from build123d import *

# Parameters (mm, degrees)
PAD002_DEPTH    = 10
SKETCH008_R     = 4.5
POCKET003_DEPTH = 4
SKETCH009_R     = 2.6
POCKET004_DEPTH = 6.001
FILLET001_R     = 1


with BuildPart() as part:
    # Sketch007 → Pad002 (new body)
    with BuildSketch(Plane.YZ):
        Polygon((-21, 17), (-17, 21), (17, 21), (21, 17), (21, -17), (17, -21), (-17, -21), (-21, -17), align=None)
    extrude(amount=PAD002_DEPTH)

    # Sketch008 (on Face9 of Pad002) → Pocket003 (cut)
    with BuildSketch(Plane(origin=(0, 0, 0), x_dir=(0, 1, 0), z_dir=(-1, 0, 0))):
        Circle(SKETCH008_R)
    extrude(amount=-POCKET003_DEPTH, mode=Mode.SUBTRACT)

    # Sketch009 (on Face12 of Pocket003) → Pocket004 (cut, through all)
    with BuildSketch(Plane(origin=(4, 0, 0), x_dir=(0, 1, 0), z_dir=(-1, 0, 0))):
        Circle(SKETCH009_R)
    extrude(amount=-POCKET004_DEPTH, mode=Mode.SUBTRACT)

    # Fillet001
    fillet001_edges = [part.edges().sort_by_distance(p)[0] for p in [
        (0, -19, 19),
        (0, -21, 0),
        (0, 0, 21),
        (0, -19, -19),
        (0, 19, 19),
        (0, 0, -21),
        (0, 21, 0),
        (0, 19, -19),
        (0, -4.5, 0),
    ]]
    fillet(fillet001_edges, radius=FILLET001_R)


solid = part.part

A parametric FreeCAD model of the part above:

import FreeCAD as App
import Part
import Sketcher
from FreeCAD import Vector
Q = App.Units.Quantity


def edges_at(feature, points):
    """Names of the edges that pass closest to the given points."""
    edges = feature.Shape.Edges
    near = lambda p: min(range(len(edges)), key=lambda i: edges[i].distToShape(Part.Vertex(*p))[0])
    return sorted({f"Edge{near(p) + 1}" for p in points})


def add_polygon(sketch, points):
    """Adds a closed chain of lines whose ends are joined by coincident constraints."""
    first, n = sketch.GeometryCount, len(points)
    for a, b in zip(points, points[1:] + points[:1]):
        sketch.addGeometry(Part.LineSegment(App.Vector(*a, 0), App.Vector(*b, 0)), False)
    for i in range(n):
        sketch.addConstraint(Sketcher.Constraint("Coincident", first + i, 2, first + (i + 1) % n, 1))

doc = App.newDocument("Part")
params = doc.addObject("Spreadsheet::Sheet", "Params")
for row, (alias, value) in enumerate([
    ("sketch1_width", "34 mm"),
    ("pad1_length", "10 mm"),
    ("sketch2_diameter", "9 mm"),
    ("pocket1_length", "4 mm"),
    ("sketch3_diameter", "5.2 mm"),
    ("fillet_radius", "1 mm"),
], start=1):
    params.set(f"A{row}", alias)
    params.set(f"B{row}", "=" + value)
    params.setAlias(f"B{row}", alias)

body = doc.addObject("PartDesign::Body", "Body")

sketch1 = doc.addObject("Sketcher::SketchObject", "Sketch")
body.addObject(sketch1)
sketch1.AttachmentSupport = (doc.YZ_Plane, [""])
sketch1.MapMode = "FlatFace"
add_polygon(sketch1, [(-17, 21), (-21, 17), (-21, -17), (-17, -21), (17, -21), (21, -17), (21, 17), (17, 21)])
sketch1.addConstraint(Sketcher.Constraint("Vertical", 1))
sketch1.addConstraint(Sketcher.Constraint("Horizontal", 3))
sketch1.addConstraint(Sketcher.Constraint("Vertical", 5))
sketch1.addConstraint(Sketcher.Constraint("Horizontal", 7))
sketch1.addConstraint(Sketcher.Constraint("Symmetric", 0, 2, 4, 2, -1, 1))
sketch1.addConstraint(Sketcher.Constraint("Symmetric", 2, 2, 6, 2, -1, 1))
sketch1.addConstraint(Sketcher.Constraint("Perpendicular", 0, 2))
sketch1.addConstraint(Sketcher.Constraint("Perpendicular", 2, 4))
sketch1.addConstraint(Sketcher.Constraint("Perpendicular", 4, 6))
sketch1.addConstraint(Sketcher.Constraint("Horizontal", 1, 2, 4, 2))
sketch1.addConstraint(Sketcher.Constraint("Vertical", 3, 2, 6, 2))
sketch1.addConstraint(Sketcher.Constraint("Equal", 7, 1))
sketch1.addConstraint(Sketcher.Constraint("DistanceX", 3, 1, 3, 2, Q("34 mm")))
sketch1.addConstraint(Sketcher.Constraint("DistanceX", 0, 2, -1, 1, Q("21 mm")))
sketch1.setExpression("Constraints[20]", "Params.sketch1_width")
pad1 = doc.addObject("PartDesign::Pad", "Pad")
body.addObject(pad1)
pad1.Profile = sketch1
pad1.setExpression("Length", "Params.pad1_length")

sketch2 = doc.addObject("Sketcher::SketchObject", "Sketch001")
body.addObject(sketch2)
sketch2.AttachmentSupport = (doc.YZ_Plane, [""])
sketch2.MapMode = "FlatFace"
sketch2.addGeometry(Part.Circle(Vector(0, 0, 0), Vector(0, 0, 1), 4.5), False)
sketch2.addConstraint(Sketcher.Constraint("Coincident", 0, 3, -1, 1))
sketch2.addConstraint(Sketcher.Constraint("Diameter", 0, Q("9 mm")))
sketch2.setExpression("Constraints[1]", "Params.sketch2_diameter")
pocket1 = doc.addObject("PartDesign::Pocket", "Pocket")
body.addObject(pocket1)
pocket1.Profile = sketch2
pocket1.setExpression("Length", "Params.pocket1_length")
pocket1.Reversed = True

sketch3 = doc.addObject("Sketcher::SketchObject", "Sketch002")
body.addObject(sketch3)
sketch3.AttachmentSupport = (doc.YZ_Plane, [""])
sketch3.MapMode = "FlatFace"
sketch3.AttachmentOffset = App.Placement(Vector(0, 0, 4), App.Rotation())
sketch3.addGeometry(Part.Circle(Vector(0, 0, 0), Vector(0, 0, 1), 2.6), False)
sketch3.addConstraint(Sketcher.Constraint("Coincident", 0, 3, -1, 1))
sketch3.addConstraint(Sketcher.Constraint("Diameter", 0, Q("5.2 mm")))
sketch3.setExpression("Constraints[1]", "Params.sketch3_diameter")
pocket2 = doc.addObject("PartDesign::Pocket", "Pocket001")
body.addObject(pocket2)
pocket2.Profile = sketch3
pocket2.Type = "ThroughAll"
pocket2.Reversed = True
doc.recompute()

fillet = doc.addObject("PartDesign::Fillet", "Fillet")
body.addObject(fillet)
fillet.Base = (pocket2, edges_at(pocket2, [
    (0, -19, 19),
    (0, -21, 0),
    (0, 0, 21),
    (0, -19, -19),
    (0, 19, 19),
    (0, 0, -21),
    (0, 21, 0),
    (0, 19, -19),
    (0, -4.5, 0),
]))
fillet.setExpression("Radius", "Params.fillet_radius")

doc.recompute()
